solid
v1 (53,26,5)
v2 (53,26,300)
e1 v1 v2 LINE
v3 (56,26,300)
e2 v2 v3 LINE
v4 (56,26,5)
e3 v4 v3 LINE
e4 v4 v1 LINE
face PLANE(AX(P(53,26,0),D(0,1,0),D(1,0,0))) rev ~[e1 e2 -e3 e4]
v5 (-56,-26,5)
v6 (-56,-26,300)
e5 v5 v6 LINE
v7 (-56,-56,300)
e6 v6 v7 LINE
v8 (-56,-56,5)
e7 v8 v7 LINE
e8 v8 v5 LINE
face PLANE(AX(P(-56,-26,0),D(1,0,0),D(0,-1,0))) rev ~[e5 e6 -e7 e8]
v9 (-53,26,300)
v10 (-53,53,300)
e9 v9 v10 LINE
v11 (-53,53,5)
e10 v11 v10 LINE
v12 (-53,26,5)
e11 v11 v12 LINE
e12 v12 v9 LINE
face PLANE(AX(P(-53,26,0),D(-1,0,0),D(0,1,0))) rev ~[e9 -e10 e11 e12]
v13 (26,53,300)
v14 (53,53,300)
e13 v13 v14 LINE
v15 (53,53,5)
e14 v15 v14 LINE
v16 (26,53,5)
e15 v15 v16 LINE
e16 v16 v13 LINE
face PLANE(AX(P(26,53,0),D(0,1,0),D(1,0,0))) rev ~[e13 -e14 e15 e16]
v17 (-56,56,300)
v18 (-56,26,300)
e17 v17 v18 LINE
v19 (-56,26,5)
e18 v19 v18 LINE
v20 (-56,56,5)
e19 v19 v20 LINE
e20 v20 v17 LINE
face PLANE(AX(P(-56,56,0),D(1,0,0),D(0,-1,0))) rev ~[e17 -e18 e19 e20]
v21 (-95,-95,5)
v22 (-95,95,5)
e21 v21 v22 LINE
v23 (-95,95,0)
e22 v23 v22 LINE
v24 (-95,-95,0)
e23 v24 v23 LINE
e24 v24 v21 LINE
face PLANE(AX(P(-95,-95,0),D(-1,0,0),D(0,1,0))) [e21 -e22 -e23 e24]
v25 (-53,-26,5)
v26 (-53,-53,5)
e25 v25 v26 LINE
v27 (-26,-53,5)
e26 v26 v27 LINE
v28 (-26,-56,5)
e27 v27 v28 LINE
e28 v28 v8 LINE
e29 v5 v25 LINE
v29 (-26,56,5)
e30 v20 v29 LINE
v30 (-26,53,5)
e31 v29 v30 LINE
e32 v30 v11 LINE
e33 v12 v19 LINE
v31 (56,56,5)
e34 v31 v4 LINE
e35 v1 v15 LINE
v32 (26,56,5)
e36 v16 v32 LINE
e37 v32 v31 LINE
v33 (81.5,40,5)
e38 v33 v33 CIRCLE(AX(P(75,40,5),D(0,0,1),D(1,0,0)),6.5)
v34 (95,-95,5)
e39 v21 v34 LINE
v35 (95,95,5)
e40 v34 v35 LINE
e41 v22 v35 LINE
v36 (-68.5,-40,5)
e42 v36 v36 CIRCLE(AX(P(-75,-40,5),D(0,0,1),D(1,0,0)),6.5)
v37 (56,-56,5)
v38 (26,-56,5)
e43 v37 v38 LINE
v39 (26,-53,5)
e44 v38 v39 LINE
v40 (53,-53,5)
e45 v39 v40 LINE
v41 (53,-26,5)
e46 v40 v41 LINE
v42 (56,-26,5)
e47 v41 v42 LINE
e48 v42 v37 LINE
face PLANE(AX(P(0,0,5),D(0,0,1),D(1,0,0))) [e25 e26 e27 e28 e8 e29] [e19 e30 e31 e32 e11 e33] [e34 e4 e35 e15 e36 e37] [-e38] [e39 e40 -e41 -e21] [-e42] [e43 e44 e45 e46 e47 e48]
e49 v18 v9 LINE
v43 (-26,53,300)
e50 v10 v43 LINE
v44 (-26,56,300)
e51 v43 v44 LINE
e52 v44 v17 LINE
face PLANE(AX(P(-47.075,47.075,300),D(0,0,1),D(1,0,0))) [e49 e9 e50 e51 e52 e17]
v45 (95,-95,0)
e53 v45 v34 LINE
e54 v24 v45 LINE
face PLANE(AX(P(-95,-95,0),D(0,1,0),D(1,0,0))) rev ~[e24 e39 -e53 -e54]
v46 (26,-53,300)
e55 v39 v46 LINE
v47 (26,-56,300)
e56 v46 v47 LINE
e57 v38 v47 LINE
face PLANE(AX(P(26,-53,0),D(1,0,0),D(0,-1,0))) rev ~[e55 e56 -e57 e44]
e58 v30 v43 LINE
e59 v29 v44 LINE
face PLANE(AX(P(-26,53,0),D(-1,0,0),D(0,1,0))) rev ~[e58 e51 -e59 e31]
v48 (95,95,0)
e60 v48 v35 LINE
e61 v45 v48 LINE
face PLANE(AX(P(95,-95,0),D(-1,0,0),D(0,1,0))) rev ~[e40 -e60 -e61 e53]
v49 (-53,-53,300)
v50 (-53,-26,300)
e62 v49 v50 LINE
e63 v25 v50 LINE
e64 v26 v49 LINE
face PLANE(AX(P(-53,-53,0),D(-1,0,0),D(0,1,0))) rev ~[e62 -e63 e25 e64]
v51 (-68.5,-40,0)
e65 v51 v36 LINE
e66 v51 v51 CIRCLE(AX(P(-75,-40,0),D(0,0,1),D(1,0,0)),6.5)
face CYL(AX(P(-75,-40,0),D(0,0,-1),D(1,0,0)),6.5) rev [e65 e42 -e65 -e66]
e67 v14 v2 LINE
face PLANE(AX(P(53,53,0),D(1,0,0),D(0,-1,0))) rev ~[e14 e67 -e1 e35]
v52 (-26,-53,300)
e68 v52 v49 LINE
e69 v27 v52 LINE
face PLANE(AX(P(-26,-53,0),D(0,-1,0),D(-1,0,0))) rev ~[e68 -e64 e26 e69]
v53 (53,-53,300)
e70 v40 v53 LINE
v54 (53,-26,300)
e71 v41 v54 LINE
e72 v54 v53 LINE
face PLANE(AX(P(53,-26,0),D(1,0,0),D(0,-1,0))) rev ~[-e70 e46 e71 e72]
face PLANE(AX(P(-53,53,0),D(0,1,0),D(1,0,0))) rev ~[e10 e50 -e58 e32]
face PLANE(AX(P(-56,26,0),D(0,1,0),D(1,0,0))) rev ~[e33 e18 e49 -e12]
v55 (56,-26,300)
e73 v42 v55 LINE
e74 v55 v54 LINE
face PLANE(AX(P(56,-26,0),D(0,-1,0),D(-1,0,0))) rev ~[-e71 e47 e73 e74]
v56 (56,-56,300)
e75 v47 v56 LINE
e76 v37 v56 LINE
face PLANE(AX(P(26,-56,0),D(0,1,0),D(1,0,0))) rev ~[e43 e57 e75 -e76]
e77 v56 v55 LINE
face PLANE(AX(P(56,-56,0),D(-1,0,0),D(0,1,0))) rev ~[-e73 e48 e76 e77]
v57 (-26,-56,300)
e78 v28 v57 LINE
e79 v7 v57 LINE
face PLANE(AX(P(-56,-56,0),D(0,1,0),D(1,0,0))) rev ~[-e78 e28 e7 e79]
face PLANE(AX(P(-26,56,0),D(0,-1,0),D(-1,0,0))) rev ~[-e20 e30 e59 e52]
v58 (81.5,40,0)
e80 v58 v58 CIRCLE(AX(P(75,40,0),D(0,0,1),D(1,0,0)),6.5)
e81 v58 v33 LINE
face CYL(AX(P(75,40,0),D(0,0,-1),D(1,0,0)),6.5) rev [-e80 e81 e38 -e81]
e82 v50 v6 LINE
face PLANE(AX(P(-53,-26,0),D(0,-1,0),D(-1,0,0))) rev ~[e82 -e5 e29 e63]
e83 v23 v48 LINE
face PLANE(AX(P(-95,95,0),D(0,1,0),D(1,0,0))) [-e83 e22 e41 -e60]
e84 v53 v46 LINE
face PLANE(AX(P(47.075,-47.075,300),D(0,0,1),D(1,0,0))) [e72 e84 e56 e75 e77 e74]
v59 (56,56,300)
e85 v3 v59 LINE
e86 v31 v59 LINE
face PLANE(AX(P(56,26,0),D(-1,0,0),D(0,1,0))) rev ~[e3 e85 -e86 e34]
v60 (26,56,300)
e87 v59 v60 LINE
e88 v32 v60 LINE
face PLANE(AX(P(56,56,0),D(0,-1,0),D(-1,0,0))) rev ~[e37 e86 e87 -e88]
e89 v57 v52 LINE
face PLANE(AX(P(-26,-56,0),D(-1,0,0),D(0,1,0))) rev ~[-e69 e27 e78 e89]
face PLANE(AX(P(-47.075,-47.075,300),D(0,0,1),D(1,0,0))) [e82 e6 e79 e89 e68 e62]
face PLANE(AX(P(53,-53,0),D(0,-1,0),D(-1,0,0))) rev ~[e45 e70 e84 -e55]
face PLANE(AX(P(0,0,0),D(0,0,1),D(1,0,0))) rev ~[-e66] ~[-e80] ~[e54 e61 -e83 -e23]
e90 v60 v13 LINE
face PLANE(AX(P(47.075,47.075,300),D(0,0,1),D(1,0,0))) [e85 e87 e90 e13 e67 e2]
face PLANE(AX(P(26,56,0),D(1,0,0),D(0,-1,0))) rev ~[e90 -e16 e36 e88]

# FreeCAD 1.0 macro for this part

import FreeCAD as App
import Part
import Sketcher
from FreeCAD import Vector
Q = App.Units.Quantity


def add_polygon(sketch, points):
    """Adds a closed chain of lines whose ends are joined by coincident constraints."""
    first, n = sketch.GeometryCount, len(points)
    for a, b in zip(points, points[1:] + points[:1]):
        sketch.addGeometry(Part.LineSegment(App.Vector(*a, 0), App.Vector(*b, 0)), False)
    for i in range(n):
        sketch.addConstraint(Sketcher.Constraint("Coincident", first + i, 2, first + (i + 1) % n, 1))

doc = App.newDocument("Part")
body = doc.addObject("PartDesign::Body", "Body")

# Sketch on XY plane
sketch1 = body.newObject("Sketcher::SketchObject", "Sketch")
sketch1.AttachmentSupport = (doc.getObject("XY_Plane"), [""])
sketch1.MapMode = "FlatFace"
add_polygon(sketch1, [(-95, 95), (-95, -95), (95, -95), (95, 95)])  # lines 0-3
sketch1.addGeometry(Part.Circle(Vector(-75, -40, 0), Vector(0, 0, 1), 6.5), False)  # 4
add_polygon(sketch1, [(-26, -56), (-56, -56), (-56, -26), (-53, -26), (-53, -53), (-26, -53)])  # lines 5-10
add_polygon(sketch1, [(53, -53), (53, -26), (56, -26), (56, -56), (26, -56), (26, -53)])  # lines 11-16
add_polygon(sketch1, [(-53, 26), (-56, 26), (-56, 56), (-26, 56), (-26, 53), (-53, 53)])  # lines 17-22
add_polygon(sketch1, [(53, 53), (26, 53), (26, 56), (56, 56), (56, 26), (53, 26)])  # lines 23-28
sketch1.addGeometry(Part.Circle(Vector(75, 40, 0), Vector(0, 0, 1), 6.5), False)  # 29
sketch1.addConstraint([
    Sketcher.Constraint("Vertical", 0),
    Sketcher.Constraint("Horizontal", 1),
    Sketcher.Constraint("Vertical", 2),
    Sketcher.Constraint("Horizontal", 3),
    Sketcher.Constraint("Horizontal", 5),
    Sketcher.Constraint("Vertical", 6),
    Sketcher.Constraint("Horizontal", 7),
    Sketcher.Constraint("Vertical", 8),
    Sketcher.Constraint("Horizontal", 9),
    Sketcher.Constraint("Vertical", 10),
    Sketcher.Constraint("Vertical", 11),
    Sketcher.Constraint("Horizontal", 12),
    Sketcher.Constraint("Vertical", 13),
    Sketcher.Constraint("Horizontal", 14),
    Sketcher.Constraint("Vertical", 15),
    Sketcher.Constraint("Horizontal", 16),
    Sketcher.Constraint("Horizontal", 17),
    Sketcher.Constraint("Vertical", 18),
    Sketcher.Constraint("Horizontal", 19),
    Sketcher.Constraint("Vertical", 20),
    Sketcher.Constraint("Horizontal", 21),
    Sketcher.Constraint("Vertical", 22),
    Sketcher.Constraint("Horizontal", 23),
    Sketcher.Constraint("Vertical", 24),
    Sketcher.Constraint("Horizontal", 25),
    Sketcher.Constraint("Vertical", 26),
    Sketcher.Constraint("Horizontal", 27),
    Sketcher.Constraint("Vertical", 28),
    Sketcher.Constraint("Equal", 4, 29),
    Sketcher.Constraint("Symmetric", 4, 3, 29, 3, -1, 1),
    Sketcher.Constraint("Symmetric", 0, 2, 2, 2, -1, 1),
    Sketcher.Constraint("Symmetric", 12, 2, 17, 2, -1, 1),
    Sketcher.Constraint("Symmetric", 14, 2, 19, 2, -1, 1),
    Sketcher.Constraint("Symmetric", 16, 2, 21, 2, -1, 1),
    Sketcher.Constraint("Symmetric", 9, 2, 23, 2, -1, 1),
    Sketcher.Constraint("Symmetric", 5, 2, 25, 2, -1, 1),
    Sketcher.Constraint("Symmetric", 7, 2, 27, 2, -1, 1),
    Sketcher.Constraint("Symmetric", 7, 2, 11, 2, -2),
    Sketcher.Constraint("Symmetric", 5, 2, 13, 2, -2),
    Sketcher.Constraint("Symmetric", 9, 2, 15, 2, -2),
    Sketcher.Constraint("Equal", 3, 0),
    Sketcher.Constraint("Equal", 25, 6),
    Sketcher.Constraint("Equal", 23, 8),
    Sketcher.Constraint("Diameter", 4, Q("13 mm")),
    Sketcher.Constraint("DistanceX", 1, 1, 1, 2, Q("190 mm")),
    Sketcher.Constraint("DistanceX", 5, 2, 5, 1, Q("30 mm")),
    Sketcher.Constraint("DistanceX", 7, 1, 7, 2, Q("3 mm")),
    Sketcher.Constraint("DistanceX", 4, 3, -1, 1, Q("75 mm")),
    Sketcher.Constraint("DistanceY", 4, 3, -1, 1, Q("40 mm")),
    Sketcher.Constraint("DistanceX", 5, 2, -1, 1, Q("56 mm")),
    Sketcher.Constraint("DistanceY", 5, 2, -1, 1, Q("56 mm")),
])
pad1 = body.newObject("PartDesign::Pad", "Pad")
pad1.Profile = sketch1
pad1.Length = 5

# Sketch on XY plane
sketch2 = body.newObject("Sketcher::SketchObject", "Sketch001")
sketch2.AttachmentSupport = (doc.getObject("XY_Plane"), [""])
sketch2.MapMode = "FlatFace"
add_polygon(sketch2, [(-53, -26), (-56, -26), (-56, -56), (-26, -56), (-26, -53), (-53, -53)])  # lines 0-5
add_polygon(sketch2, [(56, -56), (56, -26), (53, -26), (53, -53), (26, -53), (26, -56)])  # lines 6-11
add_polygon(sketch2, [(56, 56), (26, 56), (26, 53), (53, 53), (53, 26), (56, 26)])  # lines 12-17
add_polygon(sketch2, [(-26, 56), (-56, 56), (-56, 26), (-53, 26), (-53, 53), (-26, 53)])  # lines 18-23
sketch2.addConstraint([
    Sketcher.Constraint("Horizontal", 0),
    Sketcher.Constraint("Vertical", 1),
    Sketcher.Constraint("Horizontal", 2),
    Sketcher.Constraint("Vertical", 3),
    Sketcher.Constraint("Horizontal", 4),
    Sketcher.Constraint("Vertical", 5),
    Sketcher.Constraint("Vertical", 6),
    Sketcher.Constraint("Horizontal", 7),
    Sketcher.Constraint("Vertical", 8),
    Sketcher.Constraint("Horizontal", 9),
    Sketcher.Constraint("Vertical", 10),
    Sketcher.Constraint("Horizontal", 11),
    Sketcher.Constraint("Horizontal", 12),
    Sketcher.Constraint("Vertical", 13),
    Sketcher.Constraint("Horizontal", 14),
    Sketcher.Constraint("Vertical", 15),
    Sketcher.Constraint("Horizontal", 16),
    Sketcher.Constraint("Vertical", 17),
    Sketcher.Constraint("Horizontal", 18),
    Sketcher.Constraint("Vertical", 19),
    Sketcher.Constraint("Horizontal", 20),
    Sketcher.Constraint("Vertical", 21),
    Sketcher.Constraint("Horizontal", 22),
    Sketcher.Constraint("Vertical", 23),
    Sketcher.Constraint("Symmetric", 2, 2, 12, 2, -1, 1),
    Sketcher.Constraint("Symmetric", 4, 2, 14, 2, -1, 1),
    Sketcher.Constraint("Symmetric", 0, 2, 16, 2, -1, 1),
    Sketcher.Constraint("Symmetric", 11, 2, 18, 2, -1, 1),
    Sketcher.Constraint("Symmetric", 7, 2, 20, 2, -1, 1),
    Sketcher.Constraint("Symmetric", 9, 2, 22, 2, -1, 1),
    Sketcher.Constraint("Symmetric", 0, 2, 6, 2, -2),
    Sketcher.Constraint("Symmetric", 4, 2, 8, 2, -2),
    Sketcher.Constraint("Symmetric", 2, 2, 10, 2, -2),
    Sketcher.Constraint("Equal", 18, 1),
    Sketcher.Constraint("Equal", 20, 3),
    Sketcher.Constraint("DistanceX", 0, 2, 0, 1, Q("3 mm")),
    Sketcher.Constraint("DistanceX", 2, 1, 2, 2, Q("30 mm")),
    Sketcher.Constraint("DistanceX", 0, 2, -1, 1, Q("56 mm")),
    Sketcher.Constraint("DistanceY", 0, 2, -1, 1, Q("26 mm")),
])
pad2 = body.newObject("PartDesign::Pad", "Pad001")
pad2.Profile = sketch2
pad2.Length = 300

doc.recompute()
